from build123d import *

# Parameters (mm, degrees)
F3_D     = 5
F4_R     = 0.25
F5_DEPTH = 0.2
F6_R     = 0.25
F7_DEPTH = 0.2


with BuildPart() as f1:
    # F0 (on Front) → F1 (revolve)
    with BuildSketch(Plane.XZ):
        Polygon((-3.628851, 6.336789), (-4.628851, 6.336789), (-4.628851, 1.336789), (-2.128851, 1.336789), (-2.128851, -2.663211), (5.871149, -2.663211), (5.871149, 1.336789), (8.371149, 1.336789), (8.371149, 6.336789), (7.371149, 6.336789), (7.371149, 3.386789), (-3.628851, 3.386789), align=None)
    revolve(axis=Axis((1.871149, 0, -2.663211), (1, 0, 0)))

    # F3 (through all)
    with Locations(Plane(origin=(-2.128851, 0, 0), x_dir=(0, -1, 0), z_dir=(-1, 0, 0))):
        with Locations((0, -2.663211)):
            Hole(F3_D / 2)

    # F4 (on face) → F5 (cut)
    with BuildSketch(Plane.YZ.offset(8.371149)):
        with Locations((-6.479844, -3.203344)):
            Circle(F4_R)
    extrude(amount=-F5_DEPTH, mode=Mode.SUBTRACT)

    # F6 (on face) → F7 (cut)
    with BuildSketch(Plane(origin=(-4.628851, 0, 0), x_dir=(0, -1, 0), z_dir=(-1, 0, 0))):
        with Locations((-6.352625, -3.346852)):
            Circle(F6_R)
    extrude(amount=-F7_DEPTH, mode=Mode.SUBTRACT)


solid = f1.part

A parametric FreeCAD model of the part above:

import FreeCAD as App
import Part
import Sketcher
from FreeCAD import Vector

doc = App.newDocument("Part")
body = doc.addObject("PartDesign::Body", "Body")

sketch1 = doc.addObject("Sketcher::SketchObject", "Sketch")
body.addObject(sketch1)
sketch1.AttachmentSupport = (doc.XZ_Plane, [""])
sketch1.MapMode = "FlatFace"
sketch1.addGeometry(Part.LineSegment(Vector(-3.6, 6.3, 0), Vector(-4.6, 6.3, 0)), False)
sketch1.addGeometry(Part.LineSegment(Vector(-4.6, 6.3, 0), Vector(-4.6, 1.3, 0)), False)
sketch1.addGeometry(Part.LineSegment(Vector(-4.6, 1.3, 0), Vector(-2.1, 1.3, 0)), False)
sketch1.addGeometry(Part.LineSegment(Vector(-2.1, 1.3, 0), Vector(-2.1, -2.7, 0)), False)
sketch1.addGeometry(Part.LineSegment(Vector(-2.1, -2.7, 0), Vector(5.9, -2.7, 0)), False)
sketch1.addGeometry(Part.LineSegment(Vector(5.9, -2.7, 0), Vector(5.9, 1.3, 0)), False)
sketch1.addGeometry(Part.LineSegment(Vector(5.9, 1.3, 0), Vector(8.4, 1.3, 0)), False)
sketch1.addGeometry(Part.LineSegment(Vector(8.4, 1.3, 0), Vector(8.4, 6.3, 0)), False)
sketch1.addGeometry(Part.LineSegment(Vector(8.4, 6.3, 0), Vector(7.4, 6.3, 0)), False)
sketch1.addGeometry(Part.LineSegment(Vector(7.4, 6.3, 0), Vector(7.4, 3.4, 0)), False)
sketch1.addGeometry(Part.LineSegment(Vector(7.4, 3.4, 0), Vector(-3.6, 3.4, 0)), False)
sketch1.addGeometry(Part.LineSegment(Vector(-3.6, 3.4, 0), Vector(-3.6, 6.3, 0)), False)
sketch1.addGeometry(Part.LineSegment(Vector(-4.6, -2.7, 0), Vector(8.4, -2.7, 0)), True)
sketch1.addConstraint(Sketcher.Constraint("Coincident", 0, 2, 1, 1))
sketch1.addConstraint(Sketcher.Constraint("Coincident", 1, 2, 2, 1))
sketch1.addConstraint(Sketcher.Constraint("Coincident", 2, 2, 3, 1))
sketch1.addConstraint(Sketcher.Constraint("Coincident", 3, 2, 4, 1))
sketch1.addConstraint(Sketcher.Constraint("Coincident", 4, 2, 5, 1))
sketch1.addConstraint(Sketcher.Constraint("Coincident", 5, 2, 6, 1))
sketch1.addConstraint(Sketcher.Constraint("Coincident", 6, 2, 7, 1))
sketch1.addConstraint(Sketcher.Constraint("Coincident", 7, 2, 8, 1))
sketch1.addConstraint(Sketcher.Constraint("Coincident", 8, 2, 9, 1))
sketch1.addConstraint(Sketcher.Constraint("Coincident", 9, 2, 10, 1))
sketch1.addConstraint(Sketcher.Constraint("Coincident", 10, 2, 11, 1))
sketch1.addConstraint(Sketcher.Constraint("Coincident", 11, 2, 0, 1))
sketch1.addConstraint(Sketcher.Constraint("Horizontal", 0))
sketch1.addConstraint(Sketcher.Constraint("Vertical", 1))
sketch1.addConstraint(Sketcher.Constraint("Horizontal", 2))
sketch1.addConstraint(Sketcher.Constraint("Vertical", 3))
sketch1.addConstraint(Sketcher.Constraint("Horizontal", 4))
sketch1.addConstraint(Sketcher.Constraint("Vertical", 5))
sketch1.addConstraint(Sketcher.Constraint("Horizontal", 6))
sketch1.addConstraint(Sketcher.Constraint("Vertical", 7))
sketch1.addConstraint(Sketcher.Constraint("Horizontal", 8))
sketch1.addConstraint(Sketcher.Constraint("Vertical", 9))
sketch1.addConstraint(Sketcher.Constraint("Horizontal", 10))
sketch1.addConstraint(Sketcher.Constraint("Vertical", 11))
sketch1.addConstraint(Sketcher.Constraint("Horizontal", 12))
sketch1.addConstraint(Sketcher.Constraint("Horizontal", 2, 2, 5, 2))
sketch1.addConstraint(Sketcher.Constraint("Horizontal", 0, 2, 7, 2))
sketch1.addConstraint(Sketcher.Constraint("Horizontal", 4, 2, 12, 1))
sketch1.addConstraint(Sketcher.Constraint("Vertical", 1, 2, 12, 1))
sketch1.addConstraint(Sketcher.Constraint("Vertical", 7, 2, 12, 2))
sketch1.addConstraint(Sketcher.Constraint("Equal", 2, 6))
sketch1.addConstraint(Sketcher.Constraint("Equal", 0, 8))
sketch1.addConstraint(Sketcher.Constraint("DistanceX", 0, 2, 0, 1, 1.0))
sketch1.addConstraint(Sketcher.Constraint("DistanceX", 4, 1, 4, 2, 8.0))
sketch1.addConstraint(Sketcher.Constraint("DistanceX", 10, 2, 10, 1, 11.0))
sketch1.addConstraint(Sketcher.Constraint("DistanceY", 1, 2, 1, 1, 5.0))
sketch1.addConstraint(Sketcher.Constraint("DistanceY", 3, 2, 3, 1, 4.0))
sketch1.addConstraint(Sketcher.Constraint("DistanceY", 9, 2, 9, 1, 2.95))
sketch1.addConstraint(Sketcher.Constraint("DistanceX", 0, 2, -1, 1, 4.628851))
sketch1.addConstraint(Sketcher.Constraint("DistanceY", -1, 1, 0, 2, 6.336789))
revolution = doc.addObject("PartDesign::Revolution", "Revolution")
body.addObject(revolution)
revolution.Profile = sketch1
revolution.ReferenceAxis = (sketch1, ["Axis0"])
revolution.Angle = 360

sketch2 = doc.addObject("Sketcher::SketchObject", "Sketch001")
body.addObject(sketch2)
sketch2.AttachmentSupport = (doc.YZ_Plane, [""])
sketch2.MapMode = "FlatFace"
sketch2.AttachmentOffset = App.Placement(Vector(0, 0, -2.128851), App.Rotation())
sketch2.addGeometry(Part.Circle(Vector(0, -2.7, 0), Vector(0, 0, 1), 2.5), False)
sketch2.addConstraint(Sketcher.Constraint("PointOnObject", 0, 3, -2))
sketch2.addConstraint(Sketcher.Constraint("Diameter", 0, 5.0))
sketch2.addConstraint(Sketcher.Constraint("DistanceY", 0, 3, -1, 1, 2.663211))
doc.recompute()
hole = doc.addObject("PartDesign::Hole", "Hole")
body.addObject(hole)
hole.Profile = sketch2
hole.ThreadType = "None"
hole.Diameter = 5
hole.DepthType = "ThroughAll"
hole.Reversed = True

sketch3 = doc.addObject("Sketcher::SketchObject", "Sketch002")
body.addObject(sketch3)
sketch3.AttachmentSupport = (doc.YZ_Plane, [""])
sketch3.MapMode = "FlatFace"
sketch3.AttachmentOffset = App.Placement(Vector(0, 0, 8.371149), App.Rotation())
sketch3.addGeometry(Part.Circle(Vector(-6.48, -3.2, 0), Vector(0, 0, 1), 0.25), False)
sketch3.addConstraint(Sketcher.Constraint("Diameter", 0, 0.5))
sketch3.addConstraint(Sketcher.Constraint("DistanceX", 0, 3, -1, 1, 6.479844))
sketch3.addConstraint(Sketcher.Constraint("DistanceY", 0, 3, -1, 1, 3.203344))
pocket1 = doc.addObject("PartDesign::Pocket", "Pocket")
body.addObject(pocket1)
pocket1.Profile = sketch3
pocket1.Length = 0.2

sketch4 = doc.addObject("Sketcher::SketchObject", "Sketch003")
body.addObject(sketch4)
sketch4.AttachmentSupport = (doc.YZ_Plane, [""])
sketch4.MapMode = "FlatFace"
sketch4.AttachmentOffset = App.Placement(Vector(0, 0, -4.628851), App.Rotation())
sketch4.addGeometry(Part.Circle(Vector(6.35, -3.35, 0), Vector(0, 0, 1), 0.25), False)
sketch4.addConstraint(Sketcher.Constraint("Diameter", 0, 0.5))
sketch4.addConstraint(Sketcher.Constraint("DistanceX", -1, 1, 0, 3, 6.352625))
sketch4.addConstraint(Sketcher.Constraint("DistanceY", 0, 3, -1, 1, 3.346852))
pocket2 = doc.addObject("PartDesign::Pocket", "Pocket001")
body.addObject(pocket2)
pocket2.Profile = sketch4
pocket2.Length = 0.2
pocket2.Reversed = True

doc.recompute()
